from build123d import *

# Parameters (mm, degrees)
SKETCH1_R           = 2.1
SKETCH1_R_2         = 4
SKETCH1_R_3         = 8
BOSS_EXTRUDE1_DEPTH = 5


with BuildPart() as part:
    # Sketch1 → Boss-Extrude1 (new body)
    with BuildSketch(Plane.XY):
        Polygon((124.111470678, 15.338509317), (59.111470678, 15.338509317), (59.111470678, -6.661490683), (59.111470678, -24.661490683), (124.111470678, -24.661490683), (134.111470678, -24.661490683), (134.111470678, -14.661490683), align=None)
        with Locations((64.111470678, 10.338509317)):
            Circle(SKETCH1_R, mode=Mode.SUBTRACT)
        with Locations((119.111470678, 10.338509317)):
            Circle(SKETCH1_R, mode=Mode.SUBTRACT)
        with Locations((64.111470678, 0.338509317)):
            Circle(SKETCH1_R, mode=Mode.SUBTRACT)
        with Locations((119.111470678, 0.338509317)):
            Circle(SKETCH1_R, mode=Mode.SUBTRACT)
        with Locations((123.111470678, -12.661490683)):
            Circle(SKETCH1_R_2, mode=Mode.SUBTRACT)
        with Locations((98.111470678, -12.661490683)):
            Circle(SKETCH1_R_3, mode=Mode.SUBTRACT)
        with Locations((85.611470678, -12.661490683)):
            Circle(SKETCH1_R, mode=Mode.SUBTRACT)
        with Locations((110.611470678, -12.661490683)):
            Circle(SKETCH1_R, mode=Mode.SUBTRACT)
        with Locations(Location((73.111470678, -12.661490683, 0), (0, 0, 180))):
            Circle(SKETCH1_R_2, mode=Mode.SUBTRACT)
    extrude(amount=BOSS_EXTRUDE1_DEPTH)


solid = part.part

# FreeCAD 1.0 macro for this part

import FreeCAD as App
import Part
import Sketcher

V = App.Vector
Q = App.Units.Quantity

doc = App.newDocument("Part")
body = doc.addObject("PartDesign::Body", "Body")

sketch1 = doc.addObject("Sketcher::SketchObject", "Sketch")
body.addObject(sketch1)
sketch1.AttachmentSupport = (doc.XY_Plane, [""])
sketch1.MapMode = "FlatFace"
sketch1.addGeometry(Part.LineSegment(V(124.111471, 15.338509, 0), V(59.111471, 15.338509, 0)), False)
sketch1.addGeometry(Part.LineSegment(V(59.111471, 15.338509, 0), V(59.111471, -24.661491, 0)), False)
sketch1.addGeometry(Part.LineSegment(V(59.111471, -24.661491, 0), V(134.111471, -24.661491, 0)), False)
sketch1.addGeometry(Part.LineSegment(V(134.111471, -24.661491, 0), V(134.111471, -14.661491, 0)), False)
sketch1.addGeometry(Part.LineSegment(V(134.111471, -14.661491, 0), V(124.111471, 15.338509, 0)), False)
sketch1.addGeometry(Part.Circle(V(73.111471, -12.661491, 0), V(0, 0, 1), 4), False)
sketch1.addGeometry(Part.Circle(V(85.611471, -12.661491, 0), V(0, 0, 1), 2.1), False)
sketch1.addGeometry(Part.Circle(V(98.111471, -12.661491, 0), V(0, 0, 1), 8), False)
sketch1.addGeometry(Part.Circle(V(110.611471, -12.661491, 0), V(0, 0, 1), 2.1), False)
sketch1.addGeometry(Part.Circle(V(123.111471, -12.661491, 0), V(0, 0, 1), 4), False)
sketch1.addGeometry(Part.Circle(V(64.111471, 0.338509, 0), V(0, 0, 1), 2.1), False)
sketch1.addGeometry(Part.Circle(V(64.111471, 10.338509, 0), V(0, 0, 1), 2.1), False)
sketch1.addGeometry(Part.Circle(V(119.111471, 0.338509, 0), V(0, 0, 1), 2.1), False)
sketch1.addGeometry(Part.Circle(V(119.111471, 10.338509, 0), V(0, 0, 1), 2.1), False)
sketch1.addConstraint(Sketcher.Constraint("Coincident", 0, 2, 1, 1))
sketch1.addConstraint(Sketcher.Constraint("Coincident", 1, 2, 2, 1))
sketch1.addConstraint(Sketcher.Constraint("Coincident", 2, 2, 3, 1))
sketch1.addConstraint(Sketcher.Constraint("Coincident", 3, 2, 4, 1))
sketch1.addConstraint(Sketcher.Constraint("Coincident", 4, 2, 0, 1))
sketch1.addConstraint(Sketcher.Constraint("Horizontal", 0))
sketch1.addConstraint(Sketcher.Constraint("Vertical", 1))
sketch1.addConstraint(Sketcher.Constraint("Horizontal", 2))
sketch1.addConstraint(Sketcher.Constraint("Vertical", 3))
sketch1.addConstraint(Sketcher.Constraint("Equal", 6, 8))
sketch1.addConstraint(Sketcher.Constraint("Equal", 5, 9))
sketch1.addConstraint(Sketcher.Constraint("Equal", 8, 10))
sketch1.addConstraint(Sketcher.Constraint("Equal", 10, 11))
sketch1.addConstraint(Sketcher.Constraint("Equal", 11, 12))
sketch1.addConstraint(Sketcher.Constraint("Equal", 12, 13))
sketch1.addConstraint(Sketcher.Constraint("Horizontal", 5, 3, 6, 3))
sketch1.addConstraint(Sketcher.Constraint("Horizontal", 6, 3, 7, 3))
sketch1.addConstraint(Sketcher.Constraint("Horizontal", 7, 3, 8, 3))
sketch1.addConstraint(Sketcher.Constraint("Horizontal", 8, 3, 9, 3))
sketch1.addConstraint(Sketcher.Constraint("Horizontal", 10, 3, 12, 3))
sketch1.addConstraint(Sketcher.Constraint("Horizontal", 11, 3, 13, 3))
sketch1.addConstraint(Sketcher.Constraint("Vertical", 10, 3, 11, 3))
sketch1.addConstraint(Sketcher.Constraint("Vertical", 12, 3, 13, 3))
sketch1.addConstraint(Sketcher.Constraint("Diameter", 5, Q("8 mm")))
sketch1.addConstraint(Sketcher.Constraint("Diameter", 7, Q("16 mm")))
sketch1.addConstraint(Sketcher.Constraint("Diameter", 6, Q("4.2 mm")))
sketch1.addConstraint(Sketcher.Constraint("DistanceX", 0, 2, 0, 1, Q("65 mm")))
sketch1.addConstraint(Sketcher.Constraint("DistanceX", 2, 1, 2, 2, Q("75 mm")))
sketch1.addConstraint(Sketcher.Constraint("DistanceY", 1, 2, 1, 1, Q("40 mm")))
sketch1.addConstraint(Sketcher.Constraint("DistanceY", 3, 1, 3, 2, Q("10 mm")))
sketch1.addConstraint(Sketcher.Constraint("DistanceX", 5, 3, 7, 3, Q("25 mm")))
sketch1.addConstraint(Sketcher.Constraint("DistanceX", 6, 3, 8, 3, Q("25 mm")))
sketch1.addConstraint(Sketcher.Constraint("DistanceX", 7, 3, 9, 3, Q("25 mm")))
sketch1.addConstraint(Sketcher.Constraint("DistanceX", 10, 3, 5, 3, Q("9 mm")))
sketch1.addConstraint(Sketcher.Constraint("DistanceY", 5, 3, 10, 3, Q("13 mm")))
sketch1.addConstraint(Sketcher.Constraint("DistanceY", 10, 3, 11, 3, Q("10 mm")))
sketch1.addConstraint(Sketcher.Constraint("DistanceX", 12, 3, 9, 3, Q("4 mm")))
sketch1.addConstraint(Sketcher.Constraint("DistanceX", 0, 2, 11, 3, Q("5 mm")))
sketch1.addConstraint(Sketcher.Constraint("DistanceY", 11, 3, 0, 2, Q("5 mm")))
sketch1.addConstraint(Sketcher.Constraint("DistanceX", 5, 3, 6, 3, Q("12.5 mm")))
sketch1.addConstraint(Sketcher.Constraint("DistanceX", -1, 1, 5, 3, Q("73.111471 mm")))
sketch1.addConstraint(Sketcher.Constraint("DistanceY", 5, 3, -1, 1, Q("12.661491 mm")))
pad1 = doc.addObject("PartDesign::Pad", "Pad")
body.addObject(pad1)
pad1.Profile = sketch1
pad1.Length = 5

doc.recompute()
